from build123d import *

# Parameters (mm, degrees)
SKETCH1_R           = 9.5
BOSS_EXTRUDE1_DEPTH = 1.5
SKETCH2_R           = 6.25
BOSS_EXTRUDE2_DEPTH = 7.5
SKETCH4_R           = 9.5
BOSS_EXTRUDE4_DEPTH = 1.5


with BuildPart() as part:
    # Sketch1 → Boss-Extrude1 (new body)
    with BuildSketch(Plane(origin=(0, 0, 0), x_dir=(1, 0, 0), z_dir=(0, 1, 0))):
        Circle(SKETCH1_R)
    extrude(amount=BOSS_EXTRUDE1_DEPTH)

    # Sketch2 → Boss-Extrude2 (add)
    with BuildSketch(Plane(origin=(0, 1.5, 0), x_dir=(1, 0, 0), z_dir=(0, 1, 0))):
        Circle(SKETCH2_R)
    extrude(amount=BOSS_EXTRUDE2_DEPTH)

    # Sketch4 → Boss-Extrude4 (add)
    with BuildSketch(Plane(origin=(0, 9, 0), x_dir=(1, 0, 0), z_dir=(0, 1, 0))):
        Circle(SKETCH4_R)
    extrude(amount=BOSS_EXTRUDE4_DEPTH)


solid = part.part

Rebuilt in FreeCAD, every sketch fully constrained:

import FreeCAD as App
import Part
import Sketcher
from FreeCAD import Vector

doc = App.newDocument("Part")
body = doc.addObject("PartDesign::Body", "Body")

# Sketch on XZ plane
sketch1 = body.newObject("Sketcher::SketchObject", "Sketch")
sketch1.AttachmentSupport = (doc.getObject("XZ_Plane"), [""])
sketch1.MapMode = "FlatFace"
sketch1.addGeometry(Part.Circle(Vector(0, 0, 0), Vector(0, 0, 1), 9.5), False)
sketch1.addConstraint([
    Sketcher.Constraint("Coincident", 0, 3, -1, 1),
    Sketcher.Constraint("Diameter", 0, 19.0),
])
pad1 = body.newObject("PartDesign::Pad", "Pad")
pad1.Profile = sketch1
pad1.Length = 1.5
pad1.Reversed = True

# Sketch on XZ plane
sketch2 = body.newObject("Sketcher::SketchObject", "Sketch001")
sketch2.AttachmentSupport = (doc.getObject("XZ_Plane"), [""])
sketch2.MapMode = "FlatFace"
sketch2.AttachmentOffset = App.Placement(Vector(0, 0, -1.5), App.Rotation())
sketch2.addGeometry(Part.Circle(Vector(0, 0, 0), Vector(0, 0, 1), 6.25), False)
sketch2.addConstraint([
    Sketcher.Constraint("Coincident", 0, 3, -1, 1),
    Sketcher.Constraint("Diameter", 0, 12.5),
])
pad2 = body.newObject("PartDesign::Pad", "Pad001")
pad2.Profile = sketch2
pad2.Length = 7.5
pad2.Reversed = True

# Sketch on XZ plane
sketch3 = body.newObject("Sketcher::SketchObject", "Sketch002")
sketch3.AttachmentSupport = (doc.getObject("XZ_Plane"), [""])
sketch3.MapMode = "FlatFace"
sketch3.AttachmentOffset = App.Placement(Vector(0, 0, -9), App.Rotation())
sketch3.addGeometry(Part.Circle(Vector(0, 0, 0), Vector(0, 0, 1), 9.5), False)
sketch3.addConstraint([
    Sketcher.Constraint("Coincident", 0, 3, -1, 1),
    Sketcher.Constraint("Diameter", 0, 19.0),
])
pad3 = body.newObject("PartDesign::Pad", "Pad002")
pad3.Profile = sketch3
pad3.Length = 1.5
pad3.Reversed = True

doc.recompute()
